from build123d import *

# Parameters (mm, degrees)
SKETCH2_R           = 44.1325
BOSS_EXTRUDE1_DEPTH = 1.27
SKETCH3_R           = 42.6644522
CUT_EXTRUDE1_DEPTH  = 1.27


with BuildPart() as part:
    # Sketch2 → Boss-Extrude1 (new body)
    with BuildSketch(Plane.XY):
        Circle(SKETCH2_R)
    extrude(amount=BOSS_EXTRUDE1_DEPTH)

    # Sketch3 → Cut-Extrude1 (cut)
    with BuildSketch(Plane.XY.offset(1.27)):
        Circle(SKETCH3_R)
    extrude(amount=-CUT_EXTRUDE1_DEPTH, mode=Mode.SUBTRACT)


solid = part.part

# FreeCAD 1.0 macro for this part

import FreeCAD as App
import Part
import Sketcher

V = App.Vector
Q = App.Units.Quantity

doc = App.newDocument("Part")
params = doc.addObject("Spreadsheet::Sheet", "Params")
for row, (alias, value) in enumerate([
    ("sketch1_diameter", "3.475 in"),
    ("pad1_length", "0.05 in"),
    ("pocket1_length", "0.05 in"),
], start=1):
    params.set(f"A{row}", alias)
    params.set(f"B{row}", "=" + value)
    params.setAlias(f"B{row}", alias)

body = doc.addObject("PartDesign::Body", "Body")

# Sketch on XY plane
sketch1 = body.newObject("Sketcher::SketchObject", "Sketch")
sketch1.AttachmentSupport = (doc.getObject("XY_Plane"), [""])
sketch1.MapMode = "FlatFace"
sketch1.addGeometry(Part.Circle(V(0, 0, 0), V(0, 0, 1), 44), False)
sketch1.addConstraint([
    Sketcher.Constraint("Coincident", 0, 3, -1, 1),
    Sketcher.Constraint("Diameter", 0, Q("3.475 in")),
])
sketch1.setExpression("Constraints[1]", "Params.sketch1_diameter")
pad1 = body.newObject("PartDesign::Pad", "Pad")
pad1.Profile = sketch1
pad1.setExpression("Length", "Params.pad1_length")

# Sketch on XY plane
sketch2 = body.newObject("Sketcher::SketchObject", "Sketch001")
sketch2.AttachmentSupport = (doc.getObject("XY_Plane"), [""])
sketch2.MapMode = "FlatFace"
sketch2.AttachmentOffset = App.Placement(V(0, 0, 0.05 * 25.4), App.Rotation())
sketch2.addGeometry(Part.Circle(V(0, 0, 0), V(0, 0, 1), 43), False)
sketch2.addConstraint([
    Sketcher.Constraint("Coincident", 0, 3, -1, 1),
    Sketcher.Constraint("Diameter", 0, 85.328904),
])
pocket1 = body.newObject("PartDesign::Pocket", "Pocket")
pocket1.Profile = sketch2
pocket1.setExpression("Length", "Params.pocket1_length")

doc.recompute()
